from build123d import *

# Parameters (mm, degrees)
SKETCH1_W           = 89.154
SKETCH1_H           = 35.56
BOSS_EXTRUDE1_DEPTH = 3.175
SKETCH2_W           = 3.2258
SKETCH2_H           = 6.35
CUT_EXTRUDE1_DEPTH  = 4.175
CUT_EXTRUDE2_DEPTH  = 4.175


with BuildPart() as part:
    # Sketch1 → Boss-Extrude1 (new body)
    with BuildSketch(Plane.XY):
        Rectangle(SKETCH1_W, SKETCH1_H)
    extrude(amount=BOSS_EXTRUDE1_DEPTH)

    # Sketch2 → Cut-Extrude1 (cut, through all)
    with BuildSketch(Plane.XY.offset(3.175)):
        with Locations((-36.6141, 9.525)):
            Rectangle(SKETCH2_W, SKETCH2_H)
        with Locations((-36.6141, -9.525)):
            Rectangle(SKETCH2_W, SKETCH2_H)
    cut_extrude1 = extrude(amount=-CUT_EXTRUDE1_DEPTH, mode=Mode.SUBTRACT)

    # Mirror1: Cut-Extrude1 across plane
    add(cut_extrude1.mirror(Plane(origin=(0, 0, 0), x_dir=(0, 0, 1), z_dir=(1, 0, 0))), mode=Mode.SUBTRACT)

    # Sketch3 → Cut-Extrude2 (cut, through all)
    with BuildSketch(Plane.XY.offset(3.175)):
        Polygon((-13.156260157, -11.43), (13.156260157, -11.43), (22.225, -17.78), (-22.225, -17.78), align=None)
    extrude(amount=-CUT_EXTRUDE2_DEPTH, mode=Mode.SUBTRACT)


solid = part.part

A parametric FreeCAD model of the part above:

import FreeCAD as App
import Part
import Sketcher
from FreeCAD import Vector
Q = App.Units.Quantity

doc = App.newDocument("Part")
body = doc.addObject("PartDesign::Body", "Body")

sketch1 = doc.addObject("Sketcher::SketchObject", "Sketch")
body.addObject(sketch1)
sketch1.AttachmentSupport = (doc.XY_Plane, [""])
sketch1.MapMode = "FlatFace"
sketch1.addGeometry([
    Part.LineSegment(Vector(-45, 18, 0), Vector(-45, -18, 0)),
    Part.LineSegment(Vector(-45, -18, 0), Vector(45, -18, 0)),
    Part.LineSegment(Vector(45, -18, 0), Vector(45, 18, 0)),
    Part.LineSegment(Vector(45, 18, 0), Vector(-45, 18, 0)),
], False)
sketch1.addConstraint([
    Sketcher.Constraint("Coincident", 0, 2, 1, 1),
    Sketcher.Constraint("Coincident", 1, 2, 2, 1),
    Sketcher.Constraint("Coincident", 2, 2, 3, 1),
    Sketcher.Constraint("Coincident", 3, 2, 0, 1),
    Sketcher.Constraint("Vertical", 0),
    Sketcher.Constraint("Horizontal", 1),
    Sketcher.Constraint("Vertical", 2),
    Sketcher.Constraint("Horizontal", 3),
    Sketcher.Constraint("Symmetric", 0, 2, 2, 2, -1, 1),
    Sketcher.Constraint("DistanceY", 0, 2, 0, 1, Q("1.4 in")),
    Sketcher.Constraint("DistanceX", 1, 1, 1, 2, Q("3.51 in")),
])
pad1 = doc.addObject("PartDesign::Pad", "Pad")
body.addObject(pad1)
pad1.Profile = sketch1
pad1.Length = Q("0.125 in")

sketch2 = doc.addObject("Sketcher::SketchObject", "Sketch001")
body.addObject(sketch2)
sketch2.AttachmentSupport = (doc.XY_Plane, [""])
sketch2.MapMode = "FlatFace"
sketch2.AttachmentOffset = App.Placement(Vector(0, 0, 0.125 * 25.4), App.Rotation())
sketch2.addGeometry([
    Part.LineSegment(Vector(-38.2, 12.7, 0), Vector(-38.2, 6.3, 0)),
    Part.LineSegment(Vector(-38.2, 6.3, 0), Vector(-35, 6.3, 0)),
    Part.LineSegment(Vector(-35, 6.3, 0), Vector(-35, 12.7, 0)),
    Part.LineSegment(Vector(-35, 12.7, 0), Vector(-38.2, 12.7, 0)),
    Part.LineSegment(Vector(-38.2, -6.3, 0), Vector(-38.2, -12.7, 0)),
    Part.LineSegment(Vector(-38.2, -12.7, 0), Vector(-35, -12.7, 0)),
    Part.LineSegment(Vector(-35, -12.7, 0), Vector(-35, -6.3, 0)),
    Part.LineSegment(Vector(-35, -6.3, 0), Vector(-38.2, -6.3, 0)),
], False)
sketch2.addConstraint([
    Sketcher.Constraint("Coincident", 0, 2, 1, 1),
    Sketcher.Constraint("Coincident", 1, 2, 2, 1),
    Sketcher.Constraint("Coincident", 2, 2, 3, 1),
    Sketcher.Constraint("Coincident", 3, 2, 0, 1),
    Sketcher.Constraint("Coincident", 4, 2, 5, 1),
    Sketcher.Constraint("Coincident", 5, 2, 6, 1),
    Sketcher.Constraint("Coincident", 6, 2, 7, 1),
    Sketcher.Constraint("Coincident", 7, 2, 4, 1),
    Sketcher.Constraint("Vertical", 0),
    Sketcher.Constraint("Horizontal", 1),
    Sketcher.Constraint("Vertical", 2),
    Sketcher.Constraint("Horizontal", 3),
    Sketcher.Constraint("Vertical", 4),
    Sketcher.Constraint("Horizontal", 5),
    Sketcher.Constraint("Vertical", 6),
    Sketcher.Constraint("Horizontal", 7),
    Sketcher.Constraint("Symmetric", 3, 2, 4, 2, -1),
    Sketcher.Constraint("Symmetric", 1, 2, 6, 2, -1),
    Sketcher.Constraint("DistanceY", 4, 2, 3, 2, Q("1 in")),
    Sketcher.Constraint("DistanceY", 0, 2, 0, 1, Q("0.25 in")),
    Sketcher.Constraint("DistanceX", 1, 1, 1, 2, Q("0.127 in")),
    Sketcher.Constraint("DistanceX", 0, 2, -1, 1, Q("1.505 in")),
])
pocket1 = doc.addObject("PartDesign::Pocket", "Pocket")
body.addObject(pocket1)
pocket1.Profile = sketch2
pocket1.Type = "ThroughAll"
doc.recompute()

mirrored = doc.addObject("PartDesign::Mirrored", "Mirrored")
body.addObject(mirrored)
mirrored.Originals = [pocket1]
mirrored.MirrorPlane = (doc.YZ_Plane, [""])
body.Tip = mirrored

sketch3 = doc.addObject("Sketcher::SketchObject", "Sketch002")
body.addObject(sketch3)
sketch3.AttachmentSupport = (doc.XY_Plane, [""])
sketch3.MapMode = "FlatFace"
sketch3.AttachmentOffset = App.Placement(Vector(0, 0, 0.125 * 25.4), App.Rotation())
sketch3.addGeometry([
    Part.LineSegment(Vector(13, -11, 0), Vector(-13, -11, 0)),
    Part.LineSegment(Vector(-13, -11, 0), Vector(-22, -18, 0)),
    Part.LineSegment(Vector(-22, -18, 0), Vector(22, -18, 0)),
    Part.LineSegment(Vector(22, -18, 0), Vector(13, -11, 0)),
], False)
sketch3.addConstraint([
    Sketcher.Constraint("Coincident", 0, 2, 1, 1),
    Sketcher.Constraint("Coincident", 1, 2, 2, 1),
    Sketcher.Constraint("Coincident", 2, 2, 3, 1),
    Sketcher.Constraint("Coincident", 3, 2, 0, 1),
    Sketcher.Constraint("Horizontal", 0),
    Sketcher.Constraint("Horizontal", 2),
    Sketcher.Constraint("Equal", 1, 3),
    Sketcher.Constraint("Angle", 1, Q("-145 deg")),
    Sketcher.Constraint("DistanceX", 2, 1, 2, 2, Q("1.75 in")),
    Sketcher.Constraint("DistanceY", 1, 2, -1, 1, Q("0.7 in")),
    Sketcher.Constraint("DistanceY", 0, 2, -1, 1, Q("0.45 in")),
    Sketcher.Constraint("DistanceX", 1, 2, -1, 1, Q("0.875 in")),
])
pocket2 = doc.addObject("PartDesign::Pocket", "Pocket001")
body.addObject(pocket2)
pocket2.Profile = sketch3
pocket2.Type = "ThroughAll"

doc.recompute()
